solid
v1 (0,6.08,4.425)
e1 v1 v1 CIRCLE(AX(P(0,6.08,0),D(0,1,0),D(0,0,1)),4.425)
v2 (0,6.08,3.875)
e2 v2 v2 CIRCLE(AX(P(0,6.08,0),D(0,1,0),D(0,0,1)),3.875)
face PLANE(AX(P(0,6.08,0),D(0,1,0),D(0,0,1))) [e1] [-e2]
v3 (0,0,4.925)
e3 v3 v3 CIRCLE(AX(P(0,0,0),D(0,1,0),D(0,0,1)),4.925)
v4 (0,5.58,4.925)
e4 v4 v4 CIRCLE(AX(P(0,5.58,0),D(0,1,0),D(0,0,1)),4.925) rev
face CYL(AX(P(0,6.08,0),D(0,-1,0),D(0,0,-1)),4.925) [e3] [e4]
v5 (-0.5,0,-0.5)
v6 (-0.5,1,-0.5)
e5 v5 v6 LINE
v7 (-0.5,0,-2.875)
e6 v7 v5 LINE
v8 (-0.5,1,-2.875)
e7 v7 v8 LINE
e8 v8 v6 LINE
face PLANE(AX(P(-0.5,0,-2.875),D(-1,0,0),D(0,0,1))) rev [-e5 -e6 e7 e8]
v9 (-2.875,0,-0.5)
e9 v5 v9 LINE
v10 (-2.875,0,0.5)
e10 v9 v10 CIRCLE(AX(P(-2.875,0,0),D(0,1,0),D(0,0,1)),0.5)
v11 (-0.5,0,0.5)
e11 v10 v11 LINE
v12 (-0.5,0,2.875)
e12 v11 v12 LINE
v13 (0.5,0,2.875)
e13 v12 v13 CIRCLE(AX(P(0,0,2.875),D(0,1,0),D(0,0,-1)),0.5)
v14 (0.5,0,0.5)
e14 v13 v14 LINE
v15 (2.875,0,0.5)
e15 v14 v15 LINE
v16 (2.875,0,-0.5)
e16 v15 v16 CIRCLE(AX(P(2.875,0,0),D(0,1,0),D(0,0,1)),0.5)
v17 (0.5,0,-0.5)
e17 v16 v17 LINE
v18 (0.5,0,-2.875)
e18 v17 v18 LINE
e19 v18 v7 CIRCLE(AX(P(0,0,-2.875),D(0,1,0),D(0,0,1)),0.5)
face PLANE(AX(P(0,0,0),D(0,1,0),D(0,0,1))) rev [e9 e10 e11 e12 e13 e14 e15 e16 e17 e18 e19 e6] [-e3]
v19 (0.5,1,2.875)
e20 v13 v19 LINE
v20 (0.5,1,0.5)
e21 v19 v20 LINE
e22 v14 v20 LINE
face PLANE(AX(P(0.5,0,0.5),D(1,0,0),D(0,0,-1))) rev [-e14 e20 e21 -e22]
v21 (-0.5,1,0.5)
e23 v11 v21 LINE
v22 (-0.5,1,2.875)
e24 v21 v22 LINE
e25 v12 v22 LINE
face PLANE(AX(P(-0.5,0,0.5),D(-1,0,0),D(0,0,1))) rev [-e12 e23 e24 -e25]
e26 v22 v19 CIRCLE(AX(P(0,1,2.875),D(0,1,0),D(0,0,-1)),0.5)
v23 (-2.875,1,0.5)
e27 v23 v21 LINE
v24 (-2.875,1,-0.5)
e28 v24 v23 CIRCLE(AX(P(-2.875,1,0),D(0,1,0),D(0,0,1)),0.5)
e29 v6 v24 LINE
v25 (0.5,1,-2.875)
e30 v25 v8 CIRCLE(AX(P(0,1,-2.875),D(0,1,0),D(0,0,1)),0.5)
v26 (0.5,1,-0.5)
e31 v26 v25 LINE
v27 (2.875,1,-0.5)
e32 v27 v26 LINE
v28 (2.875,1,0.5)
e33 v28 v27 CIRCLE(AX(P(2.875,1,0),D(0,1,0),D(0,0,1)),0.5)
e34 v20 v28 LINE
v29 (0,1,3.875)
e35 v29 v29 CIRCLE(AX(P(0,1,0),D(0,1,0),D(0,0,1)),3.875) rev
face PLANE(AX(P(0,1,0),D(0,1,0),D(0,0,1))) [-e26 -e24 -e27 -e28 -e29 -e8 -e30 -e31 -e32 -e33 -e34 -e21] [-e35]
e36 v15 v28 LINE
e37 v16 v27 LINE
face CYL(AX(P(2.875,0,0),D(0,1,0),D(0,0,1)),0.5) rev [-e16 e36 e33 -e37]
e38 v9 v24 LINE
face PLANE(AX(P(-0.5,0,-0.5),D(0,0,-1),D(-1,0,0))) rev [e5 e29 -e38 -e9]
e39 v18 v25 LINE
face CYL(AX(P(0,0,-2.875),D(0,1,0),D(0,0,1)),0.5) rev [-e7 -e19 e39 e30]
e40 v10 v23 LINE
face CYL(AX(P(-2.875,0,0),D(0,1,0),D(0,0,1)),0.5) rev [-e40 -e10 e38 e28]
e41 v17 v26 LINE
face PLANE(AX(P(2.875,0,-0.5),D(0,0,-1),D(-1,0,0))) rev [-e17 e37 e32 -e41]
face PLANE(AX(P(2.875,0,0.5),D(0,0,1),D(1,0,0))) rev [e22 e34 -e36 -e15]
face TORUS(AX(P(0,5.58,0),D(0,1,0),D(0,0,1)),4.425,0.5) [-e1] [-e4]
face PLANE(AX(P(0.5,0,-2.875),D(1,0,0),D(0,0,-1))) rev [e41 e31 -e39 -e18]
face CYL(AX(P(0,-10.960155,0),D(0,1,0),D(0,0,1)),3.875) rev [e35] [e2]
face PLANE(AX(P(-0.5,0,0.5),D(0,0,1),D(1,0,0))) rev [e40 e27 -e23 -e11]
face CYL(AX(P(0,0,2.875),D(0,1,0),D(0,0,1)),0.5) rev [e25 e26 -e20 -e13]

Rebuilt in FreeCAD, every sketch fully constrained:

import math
import FreeCAD as App
import Part
import Sketcher
from FreeCAD import Vector
Q = App.Units.Quantity


def edges_at(feature, points):
    """Names of the edges that pass closest to the given points."""
    edges = feature.Shape.Edges
    near = lambda p: min(range(len(edges)), key=lambda i: edges[i].distToShape(Part.Vertex(*p))[0])
    return sorted({f"Edge{near(p) + 1}" for p in points})

doc = App.newDocument("Part")
body = doc.addObject("PartDesign::Body", "Body")

sketch1 = body.newObject("Sketcher::SketchObject", "Sketch")
sketch1.AttachmentSupport = (doc.getObject("XZ_Plane"), [""])
sketch1.MapMode = "FlatFace"
sketch1.addGeometry(Part.Circle(Vector(0, 0, 0), Vector(0, 0, 1), 4.9), False)
sketch1.addConstraint([
    Sketcher.Constraint("Coincident", 0, 3, -1, 1),
    Sketcher.Constraint("Diameter", 0, Q("9.85 mm")),
])
pad1 = body.newObject("PartDesign::Pad", "Pad")
pad1.Profile = sketch1
pad1.Length = 6.08
pad1.Reversed = True

sketch2 = body.newObject("Sketcher::SketchObject", "Sketch001")
sketch2.AttachmentSupport = (doc.getObject("XZ_Plane"), [""])
sketch2.MapMode = "FlatFace"
sketch2.AttachmentOffset = App.Placement(Vector(0, 0, -6.08), App.Rotation())
sketch2.addGeometry(Part.Circle(Vector(0, 0, 0), Vector(0, 0, 1), 3.9), False)
sketch2.addConstraint([
    Sketcher.Constraint("Coincident", 0, 3, -1, 1),
    Sketcher.Constraint("Diameter", 0, Q("7.75 mm")),
])
pocket1 = body.newObject("PartDesign::Pocket", "Pocket")
pocket1.Profile = sketch2
pocket1.Length = 5.08
pocket1.Reversed = True
doc.recompute()

fillet = body.newObject("PartDesign::Fillet", "Fillet")
fillet.Base = (pocket1, edges_at(pocket1, [(-4.925, 6.08, 0)]))
fillet.Radius = 0.5

sketch3 = body.newObject("Sketcher::SketchObject", "Sketch002")
sketch3.AttachmentSupport = (doc.getObject("XZ_Plane"), [""])
sketch3.MapMode = "FlatFace"
sketch3.AttachmentOffset = App.Placement(Vector(0, 0, -1), App.Rotation())
sketch3.addGeometry([
    Part.LineSegment(Vector(2.9, -0.5, 0), Vector(0.5, -0.5, 0)),
    Part.LineSegment(Vector(0.5, -0.5, 0), Vector(0.5, -2.9, 0)),
    Part.ArcOfCircle(Part.Circle(Vector(0, -2.9, 0), Vector(0, 0, 1), 0.5), math.radians(180), math.radians(360)),
    Part.LineSegment(Vector(-0.5, -2.9, 0), Vector(-0.5, -0.5, 0)),
    Part.LineSegment(Vector(-0.5, -0.5, 0), Vector(-2.9, -0.5, 0)),
    Part.ArcOfCircle(Part.Circle(Vector(-2.9, 0, 0), Vector(0, 0, 1), 0.5), math.radians(90), math.radians(270)),
    Part.LineSegment(Vector(-2.9, 0.5, 0), Vector(-0.5, 0.5, 0)),
    Part.LineSegment(Vector(-0.5, 0.5, 0), Vector(-0.5, 2.9, 0)),
    Part.ArcOfCircle(Part.Circle(Vector(0, 2.9, 0), Vector(0, 0, 1), 0.5), math.radians(0), math.radians(180)),
    Part.LineSegment(Vector(0.5, 2.9, 0), Vector(0.5, 0.5, 0)),
    Part.LineSegment(Vector(0.5, 0.5, 0), Vector(2.9, 0.5, 0)),
    Part.ArcOfCircle(Part.Circle(Vector(2.9, 0, 0), Vector(0, 0, 1), 0.5), math.radians(-90), math.radians(90)),
], False)
sketch3.addConstraint([
    Sketcher.Constraint("Coincident", 0, 2, 1, 1),
    Sketcher.Constraint("Tangent", 1, 2, 2, 2),
    Sketcher.Constraint("Tangent", 2, 1, 3, 1),
    Sketcher.Constraint("Coincident", 3, 2, 4, 1),
    Sketcher.Constraint("Tangent", 4, 2, 5, 2),
    Sketcher.Constraint("Tangent", 5, 1, 6, 1),
    Sketcher.Constraint("Coincident", 6, 2, 7, 1),
    Sketcher.Constraint("Tangent", 7, 2, 8, 2),
    Sketcher.Constraint("Tangent", 8, 1, 9, 1),
    Sketcher.Constraint("Coincident", 9, 2, 10, 1),
    Sketcher.Constraint("Tangent", 10, 2, 11, 2),
    Sketcher.Constraint("Tangent", 11, 1, 0, 1),
    Sketcher.Constraint("Horizontal", 0),
    Sketcher.Constraint("Vertical", 1),
    Sketcher.Constraint("Vertical", 3),
    Sketcher.Constraint("Horizontal", 4),
    Sketcher.Constraint("Horizontal", 6),
    Sketcher.Constraint("Vertical", 7),
    Sketcher.Constraint("Vertical", 9),
    Sketcher.Constraint("Horizontal", 10),
    Sketcher.Constraint("Equal", 2, 5),
    Sketcher.Constraint("Equal", 5, 8),
    Sketcher.Constraint("Equal", 8, 11),
    Sketcher.Constraint("Symmetric", 2, 3, 8, 3, -1, 1),
    Sketcher.Constraint("Symmetric", 5, 3, 11, 3, -1, 1),
    Sketcher.Constraint("Symmetric", 0, 2, 3, 2, -2),
    Sketcher.Constraint("Equal", 10, 1),
    Sketcher.Constraint("Radius", 2, Q("0.5 mm")),
    Sketcher.Constraint("DistanceX", 0, 2, 0, 1, Q("2.375 mm")),
])
pocket2 = body.newObject("PartDesign::Pocket", "Pocket001")
pocket2.Profile = sketch3
pocket2.Type = "ThroughAll"
pocket2.Reversed = True

doc.recompute()
